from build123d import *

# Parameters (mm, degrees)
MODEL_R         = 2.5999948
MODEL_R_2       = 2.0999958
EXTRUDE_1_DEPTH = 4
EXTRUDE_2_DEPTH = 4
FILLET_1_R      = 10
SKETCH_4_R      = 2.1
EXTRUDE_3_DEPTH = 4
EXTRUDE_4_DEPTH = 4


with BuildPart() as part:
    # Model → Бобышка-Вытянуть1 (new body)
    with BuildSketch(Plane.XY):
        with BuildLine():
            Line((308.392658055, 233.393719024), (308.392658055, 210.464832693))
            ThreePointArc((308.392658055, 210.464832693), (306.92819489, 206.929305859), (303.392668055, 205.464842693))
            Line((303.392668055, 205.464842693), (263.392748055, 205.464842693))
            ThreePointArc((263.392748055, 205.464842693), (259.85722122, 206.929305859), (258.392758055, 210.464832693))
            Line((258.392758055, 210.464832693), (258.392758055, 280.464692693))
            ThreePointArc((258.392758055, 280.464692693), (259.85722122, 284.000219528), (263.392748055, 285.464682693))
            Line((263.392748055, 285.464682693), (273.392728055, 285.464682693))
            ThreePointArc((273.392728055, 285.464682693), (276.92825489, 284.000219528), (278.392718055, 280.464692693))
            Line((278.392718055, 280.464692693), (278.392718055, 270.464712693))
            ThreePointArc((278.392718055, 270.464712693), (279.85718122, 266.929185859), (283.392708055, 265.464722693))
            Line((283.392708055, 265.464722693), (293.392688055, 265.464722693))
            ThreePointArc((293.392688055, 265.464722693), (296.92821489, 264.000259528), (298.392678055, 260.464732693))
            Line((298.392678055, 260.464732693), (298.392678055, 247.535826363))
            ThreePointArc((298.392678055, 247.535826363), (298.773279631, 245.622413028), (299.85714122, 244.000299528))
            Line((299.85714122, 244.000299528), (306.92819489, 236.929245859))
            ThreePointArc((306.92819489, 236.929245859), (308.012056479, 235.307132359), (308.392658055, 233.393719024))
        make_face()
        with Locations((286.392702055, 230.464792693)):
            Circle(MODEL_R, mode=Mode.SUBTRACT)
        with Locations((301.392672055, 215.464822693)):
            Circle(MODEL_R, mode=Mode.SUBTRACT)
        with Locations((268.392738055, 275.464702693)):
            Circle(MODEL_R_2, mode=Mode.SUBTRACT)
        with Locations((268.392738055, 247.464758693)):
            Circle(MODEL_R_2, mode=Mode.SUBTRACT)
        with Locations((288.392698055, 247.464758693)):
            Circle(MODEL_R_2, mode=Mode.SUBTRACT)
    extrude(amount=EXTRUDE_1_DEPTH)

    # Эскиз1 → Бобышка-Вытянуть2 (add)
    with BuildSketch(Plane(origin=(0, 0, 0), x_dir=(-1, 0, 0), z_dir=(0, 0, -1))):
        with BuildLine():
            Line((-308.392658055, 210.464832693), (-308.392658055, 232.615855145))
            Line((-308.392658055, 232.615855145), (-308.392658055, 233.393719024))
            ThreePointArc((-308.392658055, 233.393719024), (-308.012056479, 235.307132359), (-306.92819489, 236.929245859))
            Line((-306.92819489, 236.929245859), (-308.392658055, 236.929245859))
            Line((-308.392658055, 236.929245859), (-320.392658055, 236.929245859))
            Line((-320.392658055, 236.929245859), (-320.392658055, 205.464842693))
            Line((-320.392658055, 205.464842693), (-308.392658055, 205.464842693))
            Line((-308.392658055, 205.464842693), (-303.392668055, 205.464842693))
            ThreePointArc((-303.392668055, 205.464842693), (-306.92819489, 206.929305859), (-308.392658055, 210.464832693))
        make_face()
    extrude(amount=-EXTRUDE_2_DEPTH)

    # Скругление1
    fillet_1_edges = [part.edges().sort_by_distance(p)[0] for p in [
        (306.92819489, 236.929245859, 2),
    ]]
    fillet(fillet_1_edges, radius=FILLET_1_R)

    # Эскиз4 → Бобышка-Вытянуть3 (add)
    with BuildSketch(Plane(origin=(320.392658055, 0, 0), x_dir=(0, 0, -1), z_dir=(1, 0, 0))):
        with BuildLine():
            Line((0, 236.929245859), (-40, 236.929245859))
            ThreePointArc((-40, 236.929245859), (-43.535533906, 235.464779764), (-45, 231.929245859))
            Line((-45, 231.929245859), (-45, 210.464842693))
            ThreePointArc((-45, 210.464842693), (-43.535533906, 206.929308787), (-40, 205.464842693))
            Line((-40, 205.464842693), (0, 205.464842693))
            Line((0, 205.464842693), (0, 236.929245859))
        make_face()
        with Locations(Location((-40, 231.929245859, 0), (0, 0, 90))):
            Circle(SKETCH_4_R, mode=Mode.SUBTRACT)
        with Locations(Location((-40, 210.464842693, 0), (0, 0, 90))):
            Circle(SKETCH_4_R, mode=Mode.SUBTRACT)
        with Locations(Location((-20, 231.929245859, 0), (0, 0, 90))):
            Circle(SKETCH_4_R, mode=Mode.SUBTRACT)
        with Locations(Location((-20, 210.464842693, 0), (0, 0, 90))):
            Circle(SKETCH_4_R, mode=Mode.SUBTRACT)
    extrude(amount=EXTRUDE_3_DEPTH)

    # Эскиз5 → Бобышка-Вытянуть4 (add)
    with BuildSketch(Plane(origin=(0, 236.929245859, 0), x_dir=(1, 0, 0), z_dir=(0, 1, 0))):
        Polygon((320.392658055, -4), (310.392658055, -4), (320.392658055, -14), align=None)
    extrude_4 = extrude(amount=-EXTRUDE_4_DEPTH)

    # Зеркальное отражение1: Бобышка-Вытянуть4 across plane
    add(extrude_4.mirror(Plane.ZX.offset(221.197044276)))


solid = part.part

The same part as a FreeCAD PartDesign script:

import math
import FreeCAD as App
import Part
import Sketcher
Q = App.Units.Quantity


def edges_at(feature, points):
    """Names of the edges that pass closest to the given points."""
    edges = feature.Shape.Edges
    near = lambda p: min(range(len(edges)), key=lambda i: edges[i].distToShape(Part.Vertex(*p))[0])
    return sorted({f"Edge{near(p) + 1}" for p in points})

doc = App.newDocument("Part")
body = doc.addObject("PartDesign::Body", "Body")

# Sketch on XY plane
sketch1 = doc.addObject("Sketcher::SketchObject", "Sketch")
body.addObject(sketch1)
sketch1.AttachmentSupport = (doc.XY_Plane, [""])
sketch1.MapMode = "FlatFace"
sketch1.addGeometry(Part.LineSegment(App.Vector(308.392658, 210.464833, 0), App.Vector(308.392658, 233.393719, 0)), False)
sketch1.addGeometry(Part.ArcOfCircle(Part.Circle(App.Vector(303.392668, 233.393719, 0), App.Vector(0, 0, 1), 4.99999), math.radians(0), math.radians(45)), False)
sketch1.addGeometry(Part.LineSegment(App.Vector(306.928195, 236.929246, 0), App.Vector(299.857141, 244.0003, 0)), False)
sketch1.addGeometry(Part.ArcOfCircle(Part.Circle(App.Vector(303.392668, 247.535826, 0), App.Vector(0, 0, 1), 4.99999), math.radians(180), math.radians(225)), False)
sketch1.addGeometry(Part.LineSegment(App.Vector(298.392678, 247.535826, 0), App.Vector(298.392678, 260.464733, 0)), False)
sketch1.addGeometry(Part.ArcOfCircle(Part.Circle(App.Vector(293.392688, 260.464733, 0), App.Vector(0, 0, 1), 4.99999), math.radians(0), math.radians(90)), False)
sketch1.addGeometry(Part.LineSegment(App.Vector(293.392688, 265.464723, 0), App.Vector(283.392708, 265.464723, 0)), False)
sketch1.addGeometry(Part.ArcOfCircle(Part.Circle(App.Vector(283.392708, 270.464713, 0), App.Vector(0, 0, 1), 4.99999), math.radians(-180), math.radians(-90)), False)
sketch1.addGeometry(Part.LineSegment(App.Vector(278.392718, 270.464713, 0), App.Vector(278.392718, 280.464693, 0)), False)
sketch1.addGeometry(Part.ArcOfCircle(Part.Circle(App.Vector(273.392728, 280.464693, 0), App.Vector(0, 0, 1), 4.99999), math.radians(0), math.radians(90)), False)
sketch1.addGeometry(Part.LineSegment(App.Vector(273.392728, 285.464683, 0), App.Vector(263.392748, 285.464683, 0)), False)
sketch1.addGeometry(Part.ArcOfCircle(Part.Circle(App.Vector(263.392748, 280.464693, 0), App.Vector(0, 0, 1), 4.99999), math.radians(90), math.radians(180)), False)
sketch1.addGeometry(Part.LineSegment(App.Vector(258.392758, 280.464693, 0), App.Vector(258.392758, 210.464833, 0)), False)
sketch1.addGeometry(Part.ArcOfCircle(Part.Circle(App.Vector(263.392748, 210.464833, 0), App.Vector(0, 0, 1), 4.99999), math.radians(-180), math.radians(-90)), False)
sketch1.addGeometry(Part.LineSegment(App.Vector(263.392748, 205.464843, 0), App.Vector(303.392668, 205.464843, 0)), False)
sketch1.addGeometry(Part.ArcOfCircle(Part.Circle(App.Vector(303.392668, 210.464833, 0), App.Vector(0, 0, 1), 4.99999), math.radians(-90), math.radians(0)), False)
sketch1.addGeometry(Part.Circle(App.Vector(301.392672, 215.464823, 0), App.Vector(0, 0, 1), 2.599995), False)
sketch1.addGeometry(Part.Circle(App.Vector(286.392702, 230.464793, 0), App.Vector(0, 0, 1), 2.599995), False)
sketch1.addGeometry(Part.Circle(App.Vector(288.392698, 247.464759, 0), App.Vector(0, 0, 1), 2.099996), False)
sketch1.addGeometry(Part.Circle(App.Vector(268.392738, 247.464759, 0), App.Vector(0, 0, 1), 2.099996), False)
sketch1.addGeometry(Part.Circle(App.Vector(268.392738, 275.464703, 0), App.Vector(0, 0, 1), 2.099996), False)
sketch1.addConstraint(Sketcher.Constraint("Tangent", 0, 2, 1, 1))
sketch1.addConstraint(Sketcher.Constraint("Tangent", 1, 2, 2, 1))
sketch1.addConstraint(Sketcher.Constraint("Tangent", 2, 2, 3, 2))
sketch1.addConstraint(Sketcher.Constraint("Tangent", 3, 1, 4, 1))
sketch1.addConstraint(Sketcher.Constraint("Tangent", 4, 2, 5, 1))
sketch1.addConstraint(Sketcher.Constraint("Tangent", 5, 2, 6, 1))
sketch1.addConstraint(Sketcher.Constraint("Tangent", 6, 2, 7, 2))
sketch1.addConstraint(Sketcher.Constraint("Tangent", 7, 1, 8, 1))
sketch1.addConstraint(Sketcher.Constraint("Tangent", 8, 2, 9, 1))
sketch1.addConstraint(Sketcher.Constraint("Tangent", 9, 2, 10, 1))
sketch1.addConstraint(Sketcher.Constraint("Tangent", 10, 2, 11, 1))
sketch1.addConstraint(Sketcher.Constraint("Tangent", 11, 2, 12, 1))
sketch1.addConstraint(Sketcher.Constraint("Tangent", 12, 2, 13, 1))
sketch1.addConstraint(Sketcher.Constraint("Tangent", 13, 2, 14, 1))
sketch1.addConstraint(Sketcher.Constraint("Tangent", 14, 2, 15, 1))
sketch1.addConstraint(Sketcher.Constraint("Tangent", 15, 2, 0, 1))
sketch1.addConstraint(Sketcher.Constraint("Vertical", 0))
sketch1.addConstraint(Sketcher.Constraint("Vertical", 4))
sketch1.addConstraint(Sketcher.Constraint("Horizontal", 6))
sketch1.addConstraint(Sketcher.Constraint("Vertical", 8))
sketch1.addConstraint(Sketcher.Constraint("Horizontal", 10))
sketch1.addConstraint(Sketcher.Constraint("Vertical", 12))
sketch1.addConstraint(Sketcher.Constraint("Horizontal", 14))
sketch1.addConstraint(Sketcher.Constraint("Equal", 1, 3))
sketch1.addConstraint(Sketcher.Constraint("Equal", 3, 5))
sketch1.addConstraint(Sketcher.Constraint("Equal", 5, 7))
sketch1.addConstraint(Sketcher.Constraint("Equal", 7, 9))
sketch1.addConstraint(Sketcher.Constraint("Equal", 9, 11))
sketch1.addConstraint(Sketcher.Constraint("Equal", 11, 13))
sketch1.addConstraint(Sketcher.Constraint("Equal", 13, 15))
sketch1.addConstraint(Sketcher.Constraint("Equal", 16, 17))
sketch1.addConstraint(Sketcher.Constraint("Equal", 18, 19))
sketch1.addConstraint(Sketcher.Constraint("Equal", 19, 20))
sketch1.addConstraint(Sketcher.Constraint("Horizontal", 18, 3, 19, 3))
sketch1.addConstraint(Sketcher.Constraint("Vertical", 1, 3, 3, 3))
sketch1.addConstraint(Sketcher.Constraint("Vertical", 19, 3, 20, 3))
sketch1.addConstraint(Sketcher.Constraint("Equal", 6, 10))
sketch1.addConstraint(Sketcher.Constraint("Equal", 10, 8))
sketch1.addConstraint(Sketcher.Constraint("Angle", 2, Q("135 deg")))
sketch1.addConstraint(Sketcher.Constraint("Diameter", 16, Q("5.19999 mm")))
sketch1.addConstraint(Sketcher.Constraint("Diameter", 18, Q("4.199992 mm")))
sketch1.addConstraint(Sketcher.Constraint("Radius", 1, Q("4.99999 mm")))
sketch1.addConstraint(Sketcher.Constraint("DistanceX", 6, 2, 6, 1, Q("9.99998 mm")))
sketch1.addConstraint(Sketcher.Constraint("DistanceY", 12, 2, 12, 1, Q("69.99986 mm")))
sketch1.addConstraint(Sketcher.Constraint("DistanceX", -1, 1, 18, 3, Q("288.392698 mm")))
sketch1.addConstraint(Sketcher.Constraint("DistanceY", -1, 1, 2, 2, Q("244.0003 mm")))
sketch1.addConstraint(Sketcher.Constraint("DistanceY", 0, 1, 0, 2, Q("22.928886 mm")))
sketch1.addConstraint(Sketcher.Constraint("DistanceX", -1, 1, 1, 3, Q("303.392668 mm")))
sketch1.addConstraint(Sketcher.Constraint("DistanceY", -1, 1, 18, 3, Q("247.464759 mm")))
sketch1.addConstraint(Sketcher.Constraint("DistanceX", -1, 1, 19, 3, Q("268.392738 mm")))
sketch1.addConstraint(Sketcher.Constraint("DistanceY", 15, 3, 16, 3, Q("4.99999 mm")))
sketch1.addConstraint(Sketcher.Constraint("DistanceX", 17, 3, 16, 3, Q("14.99997 mm")))
sketch1.addConstraint(Sketcher.Constraint("DistanceY", 16, 3, 17, 3, Q("14.99997 mm")))
sketch1.addConstraint(Sketcher.Constraint("DistanceY", 20, 3, 11, 3, Q("4.99999 mm")))
sketch1.addConstraint(Sketcher.Constraint("DistanceX", -1, 1, 16, 3, Q("301.392672 mm")))
pad1 = doc.addObject("PartDesign::Pad", "Pad")
body.addObject(pad1)
pad1.Profile = sketch1
pad1.Length = 4

# Sketch on XY plane
sketch2 = doc.addObject("Sketcher::SketchObject", "Sketch001")
body.addObject(sketch2)
sketch2.AttachmentSupport = (doc.XY_Plane, [""])
sketch2.MapMode = "FlatFace"
sketch2.addGeometry(Part.LineSegment(App.Vector(308.392658, 210.464833, 0), App.Vector(308.392658, 233.393719, 0)), False)
sketch2.addGeometry(Part.ArcOfCircle(Part.Circle(App.Vector(303.392668, 233.393719, 0), App.Vector(0, 0, 1), 4.99999), math.radians(0), math.radians(45)), False)
sketch2.addGeometry(Part.LineSegment(App.Vector(306.928195, 236.929246, 0), App.Vector(320.392658, 236.929246, 0)), False)
sketch2.addGeometry(Part.LineSegment(App.Vector(320.392658, 236.929246, 0), App.Vector(320.392658, 205.464843, 0)), False)
sketch2.addGeometry(Part.LineSegment(App.Vector(320.392658, 205.464843, 0), App.Vector(303.392668, 205.464843, 0)), False)
sketch2.addGeometry(Part.ArcOfCircle(Part.Circle(App.Vector(303.392668, 210.464833, 0), App.Vector(0, 0, 1), 4.99999), math.radians(-90), math.radians(0)), False)
sketch2.addConstraint(Sketcher.Constraint("Tangent", 0, 2, 1, 1))
sketch2.addConstraint(Sketcher.Constraint("Coincident", 1, 2, 2, 1))
sketch2.addConstraint(Sketcher.Constraint("Coincident", 2, 2, 3, 1))
sketch2.addConstraint(Sketcher.Constraint("Coincident", 3, 2, 4, 1))
sketch2.addConstraint(Sketcher.Constraint("Tangent", 4, 2, 5, 1))
sketch2.addConstraint(Sketcher.Constraint("Tangent", 5, 2, 0, 1))
sketch2.addConstraint(Sketcher.Constraint("Vertical", 0))
sketch2.addConstraint(Sketcher.Constraint("Horizontal", 2))
sketch2.addConstraint(Sketcher.Constraint("Vertical", 3))
sketch2.addConstraint(Sketcher.Constraint("Horizontal", 4))
sketch2.addConstraint(Sketcher.Constraint("Equal", 1, 5))
sketch2.addConstraint(Sketcher.Constraint("DistanceX", 0, 2, 2, 2, Q("12 mm")))
sketch2.addConstraint(Sketcher.Constraint("Radius", 1, Q("4.99999 mm")))
sketch2.addConstraint(Sketcher.Constraint("DistanceX", 2, 1, 2, 2, Q("13.464463 mm")))
sketch2.addConstraint(Sketcher.Constraint("DistanceY", 0, 1, 0, 2, Q("22.928886 mm")))
sketch2.addConstraint(Sketcher.Constraint("DistanceX", -1, 1, 1, 3, Q("303.392668 mm")))
sketch2.addConstraint(Sketcher.Constraint("DistanceY", -1, 1, 1, 3, Q("233.393719 mm")))
pad2 = doc.addObject("PartDesign::Pad", "Pad001")
body.addObject(pad2)
pad2.Profile = sketch2
pad2.Length = 4
doc.recompute()

fillet = doc.addObject("PartDesign::Fillet", "Fillet")
body.addObject(fillet)
fillet.Base = (pad2, edges_at(pad2, [(306.928, 236.929, 2)]))
fillet.Radius = 10

# Sketch on YZ plane
sketch3 = doc.addObject("Sketcher::SketchObject", "Sketch002")
body.addObject(sketch3)
sketch3.AttachmentSupport = (doc.YZ_Plane, [""])
sketch3.MapMode = "FlatFace"
sketch3.AttachmentOffset = App.Placement(App.Vector(0, 0, 320.392658), App.Rotation())
sketch3.addGeometry(Part.LineSegment(App.Vector(236.929246, 0, 0), App.Vector(236.929246, 40, 0)), False)
sketch3.addGeometry(Part.ArcOfCircle(Part.Circle(App.Vector(231.929246, 40, 0), App.Vector(0, 0, 1), 5), math.radians(0), math.radians(90)), False)
sketch3.addGeometry(Part.LineSegment(App.Vector(231.929246, 45, 0), App.Vector(210.464843, 45, 0)), False)
sketch3.addGeometry(Part.ArcOfCircle(Part.Circle(App.Vector(210.464843, 40, 0), App.Vector(0, 0, 1), 5), math.radians(90), math.radians(180)), False)
sketch3.addGeometry(Part.LineSegment(App.Vector(205.464843, 40, 0), App.Vector(205.464843, 0, 0)), False)
sketch3.addGeometry(Part.LineSegment(App.Vector(205.464843, 0, 0), App.Vector(236.929246, 0, 0)), False)
sketch3.addGeometry(Part.Circle(App.Vector(210.464843, 40, 0), App.Vector(0, 0, 1), 2.1), False)
sketch3.addGeometry(Part.Circle(App.Vector(210.464843, 20, 0), App.Vector(0, 0, 1), 2.1), False)
sketch3.addGeometry(Part.Circle(App.Vector(231.929246, 40, 0), App.Vector(0, 0, 1), 2.1), False)
sketch3.addGeometry(Part.Circle(App.Vector(231.929246, 20, 0), App.Vector(0, 0, 1), 2.1), False)
sketch3.addConstraint(Sketcher.Constraint("Tangent", 0, 2, 1, 1))
sketch3.addConstraint(Sketcher.Constraint("Tangent", 1, 2, 2, 1))
sketch3.addConstraint(Sketcher.Constraint("Tangent", 2, 2, 3, 1))
sketch3.addConstraint(Sketcher.Constraint("Tangent", 3, 2, 4, 1))
sketch3.addConstraint(Sketcher.Constraint("Coincident", 4, 2, 5, 1))
sketch3.addConstraint(Sketcher.Constraint("Coincident", 5, 2, 0, 1))
sketch3.addConstraint(Sketcher.Constraint("Vertical", 0))
sketch3.addConstraint(Sketcher.Constraint("Horizontal", 2))
sketch3.addConstraint(Sketcher.Constraint("Vertical", 4))
sketch3.addConstraint(Sketcher.Constraint("Horizontal", 5))
sketch3.addConstraint(Sketcher.Constraint("Coincident", 6, 3, 3, 3))
sketch3.addConstraint(Sketcher.Constraint("Coincident", 8, 3, 1, 3))
sketch3.addConstraint(Sketcher.Constraint("Equal", 1, 3))
sketch3.addConstraint(Sketcher.Constraint("Equal", 6, 7))
sketch3.addConstraint(Sketcher.Constraint("Equal", 7, 8))
sketch3.addConstraint(Sketcher.Constraint("Equal", 8, 9))
sketch3.addConstraint(Sketcher.Constraint("PointOnObject", 4, 2, -1))
sketch3.addConstraint(Sketcher.Constraint("Horizontal", 7, 3, 9, 3))
sketch3.addConstraint(Sketcher.Constraint("Vertical", 6, 3, 7, 3))
sketch3.addConstraint(Sketcher.Constraint("Vertical", 8, 3, 9, 3))
sketch3.addConstraint(Sketcher.Constraint("Radius", 1, Q("5 mm")))
sketch3.addConstraint(Sketcher.Constraint("Diameter", 6, Q("4.2 mm")))
sketch3.addConstraint(Sketcher.Constraint("DistanceY", 0, 1, 0, 2, Q("40 mm")))
sketch3.addConstraint(Sketcher.Constraint("DistanceY", -1, 1, 7, 3, Q("20 mm")))
sketch3.addConstraint(Sketcher.Constraint("DistanceX", 2, 2, 2, 1, Q("21.464403 mm")))
sketch3.addConstraint(Sketcher.Constraint("DistanceX", -1, 1, 1, 3, Q("231.929246 mm")))
pad3 = doc.addObject("PartDesign::Pad", "Pad002")
body.addObject(pad3)
pad3.Profile = sketch3
pad3.Length = 4

# Sketch on XZ plane
sketch4 = doc.addObject("Sketcher::SketchObject", "Sketch003")
body.addObject(sketch4)
sketch4.AttachmentSupport = (doc.XZ_Plane, [""])
sketch4.MapMode = "FlatFace"
sketch4.AttachmentOffset = App.Placement(App.Vector(0, 0, -236.929246), App.Rotation())
sketch4.addGeometry(Part.LineSegment(App.Vector(320.392658, 4, 0), App.Vector(310.392658, 4, 0)), False)
sketch4.addGeometry(Part.LineSegment(App.Vector(310.392658, 4, 0), App.Vector(320.392658, 14, 0)), False)
sketch4.addGeometry(Part.LineSegment(App.Vector(320.392658, 14, 0), App.Vector(320.392658, 4, 0)), False)
sketch4.addConstraint(Sketcher.Constraint("Coincident", 0, 2, 1, 1))
sketch4.addConstraint(Sketcher.Constraint("Coincident", 1, 2, 2, 1))
sketch4.addConstraint(Sketcher.Constraint("Coincident", 2, 2, 0, 1))
sketch4.addConstraint(Sketcher.Constraint("Horizontal", 0))
sketch4.addConstraint(Sketcher.Constraint("Vertical", 2))
sketch4.addConstraint(Sketcher.Constraint("Equal", 0, 2))
sketch4.addConstraint(Sketcher.Constraint("DistanceX", 0, 2, 0, 1, Q("10 mm")))
sketch4.addConstraint(Sketcher.Constraint("DistanceY", -1, 1, 0, 2, Q("4 mm")))
sketch4.addConstraint(Sketcher.Constraint("DistanceX", -1, 1, 0, 2, Q("310.392658 mm")))
pad4 = doc.addObject("PartDesign::Pad", "Pad003")
body.addObject(pad4)
pad4.Profile = sketch4
pad4.Length = 4
doc.recompute()

datumplane = doc.addObject("PartDesign::Plane", "DatumPlane")
body.addObject(datumplane)
datumplane.AttachmentSupport = (doc.XZ_Plane, [""])
datumplane.MapMode = "FlatFace"
datumplane.AttachmentOffset = App.Placement(App.Vector(0, 0, -221.197044), App.Rotation())
mirrored = doc.addObject("PartDesign::Mirrored", "Mirrored")
body.addObject(mirrored)
mirrored.Originals = [pad4]
mirrored.MirrorPlane = (datumplane, [""])
body.Tip = mirrored

doc.recompute()
